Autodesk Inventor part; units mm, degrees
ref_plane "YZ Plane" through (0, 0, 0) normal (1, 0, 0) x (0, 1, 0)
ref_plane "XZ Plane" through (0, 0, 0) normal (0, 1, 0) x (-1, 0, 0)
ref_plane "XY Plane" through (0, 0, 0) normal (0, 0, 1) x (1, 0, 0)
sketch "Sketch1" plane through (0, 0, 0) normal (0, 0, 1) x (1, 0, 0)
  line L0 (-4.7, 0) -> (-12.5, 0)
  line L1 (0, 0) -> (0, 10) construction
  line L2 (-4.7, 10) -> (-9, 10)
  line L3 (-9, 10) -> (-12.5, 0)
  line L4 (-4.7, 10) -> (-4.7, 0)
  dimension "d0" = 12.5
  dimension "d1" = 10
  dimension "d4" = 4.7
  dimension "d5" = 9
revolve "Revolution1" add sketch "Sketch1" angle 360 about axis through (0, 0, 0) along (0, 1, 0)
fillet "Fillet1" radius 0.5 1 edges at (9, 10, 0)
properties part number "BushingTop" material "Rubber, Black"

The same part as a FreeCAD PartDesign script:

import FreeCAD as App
import Part
import Sketcher
Q = App.Units.Quantity


def edges_at(feature, points):
    """Names of the edges that pass closest to the given points."""
    edges = feature.Shape.Edges
    near = lambda p: min(range(len(edges)), key=lambda i: edges[i].distToShape(Part.Vertex(*p))[0])
    return sorted({f"Edge{near(p) + 1}" for p in points})


def add_polygon(sketch, points):
    """Adds a closed chain of lines whose ends are joined by coincident constraints."""
    first, n = sketch.GeometryCount, len(points)
    for a, b in zip(points, points[1:] + points[:1]):
        sketch.addGeometry(Part.LineSegment(App.Vector(*a, 0), App.Vector(*b, 0)), False)
    for i in range(n):
        sketch.addConstraint(Sketcher.Constraint("Coincident", first + i, 2, first + (i + 1) % n, 1))

doc = App.newDocument("Part")
body = doc.addObject("PartDesign::Body", "Body")

# Sketch on XY plane
sketch1 = doc.addObject("Sketcher::SketchObject", "Sketch")
body.addObject(sketch1)
sketch1.AttachmentSupport = (doc.XY_Plane, [""])
sketch1.MapMode = "FlatFace"
add_polygon(sketch1, [(-12.5, 0), (-4.7, 0), (-4.7, 10), (-9, 10)])  # lines 0-3
sketch1.addConstraint(Sketcher.Constraint("Horizontal", 0))
sketch1.addConstraint(Sketcher.Constraint("Vertical", 1))
sketch1.addConstraint(Sketcher.Constraint("Horizontal", 2))
sketch1.addConstraint(Sketcher.Constraint("PointOnObject", 0, 2, -1))
sketch1.addConstraint(Sketcher.Constraint("DistanceY", 1, 1, 1, 2, Q("10 mm")))
sketch1.addConstraint(Sketcher.Constraint("DistanceX", 2, 2, -1, 1, Q("9 mm")))
sketch1.addConstraint(Sketcher.Constraint("DistanceX", 0, 2, -1, 1, Q("4.7 mm")))
sketch1.addConstraint(Sketcher.Constraint("DistanceX", 3, 2, -1, 1, Q("12.5 mm")))
revolution = doc.addObject("PartDesign::Revolution", "Revolution")
body.addObject(revolution)
revolution.Profile = sketch1
revolution.ReferenceAxis = (sketch1, ["V_Axis"])
revolution.Angle = 360
doc.recompute()

fillet = doc.addObject("PartDesign::Fillet", "Fillet")
body.addObject(fillet)
fillet.Base = (revolution, edges_at(revolution, [(9, 10, 0)]))
fillet.Radius = 0.5

doc.recompute()
